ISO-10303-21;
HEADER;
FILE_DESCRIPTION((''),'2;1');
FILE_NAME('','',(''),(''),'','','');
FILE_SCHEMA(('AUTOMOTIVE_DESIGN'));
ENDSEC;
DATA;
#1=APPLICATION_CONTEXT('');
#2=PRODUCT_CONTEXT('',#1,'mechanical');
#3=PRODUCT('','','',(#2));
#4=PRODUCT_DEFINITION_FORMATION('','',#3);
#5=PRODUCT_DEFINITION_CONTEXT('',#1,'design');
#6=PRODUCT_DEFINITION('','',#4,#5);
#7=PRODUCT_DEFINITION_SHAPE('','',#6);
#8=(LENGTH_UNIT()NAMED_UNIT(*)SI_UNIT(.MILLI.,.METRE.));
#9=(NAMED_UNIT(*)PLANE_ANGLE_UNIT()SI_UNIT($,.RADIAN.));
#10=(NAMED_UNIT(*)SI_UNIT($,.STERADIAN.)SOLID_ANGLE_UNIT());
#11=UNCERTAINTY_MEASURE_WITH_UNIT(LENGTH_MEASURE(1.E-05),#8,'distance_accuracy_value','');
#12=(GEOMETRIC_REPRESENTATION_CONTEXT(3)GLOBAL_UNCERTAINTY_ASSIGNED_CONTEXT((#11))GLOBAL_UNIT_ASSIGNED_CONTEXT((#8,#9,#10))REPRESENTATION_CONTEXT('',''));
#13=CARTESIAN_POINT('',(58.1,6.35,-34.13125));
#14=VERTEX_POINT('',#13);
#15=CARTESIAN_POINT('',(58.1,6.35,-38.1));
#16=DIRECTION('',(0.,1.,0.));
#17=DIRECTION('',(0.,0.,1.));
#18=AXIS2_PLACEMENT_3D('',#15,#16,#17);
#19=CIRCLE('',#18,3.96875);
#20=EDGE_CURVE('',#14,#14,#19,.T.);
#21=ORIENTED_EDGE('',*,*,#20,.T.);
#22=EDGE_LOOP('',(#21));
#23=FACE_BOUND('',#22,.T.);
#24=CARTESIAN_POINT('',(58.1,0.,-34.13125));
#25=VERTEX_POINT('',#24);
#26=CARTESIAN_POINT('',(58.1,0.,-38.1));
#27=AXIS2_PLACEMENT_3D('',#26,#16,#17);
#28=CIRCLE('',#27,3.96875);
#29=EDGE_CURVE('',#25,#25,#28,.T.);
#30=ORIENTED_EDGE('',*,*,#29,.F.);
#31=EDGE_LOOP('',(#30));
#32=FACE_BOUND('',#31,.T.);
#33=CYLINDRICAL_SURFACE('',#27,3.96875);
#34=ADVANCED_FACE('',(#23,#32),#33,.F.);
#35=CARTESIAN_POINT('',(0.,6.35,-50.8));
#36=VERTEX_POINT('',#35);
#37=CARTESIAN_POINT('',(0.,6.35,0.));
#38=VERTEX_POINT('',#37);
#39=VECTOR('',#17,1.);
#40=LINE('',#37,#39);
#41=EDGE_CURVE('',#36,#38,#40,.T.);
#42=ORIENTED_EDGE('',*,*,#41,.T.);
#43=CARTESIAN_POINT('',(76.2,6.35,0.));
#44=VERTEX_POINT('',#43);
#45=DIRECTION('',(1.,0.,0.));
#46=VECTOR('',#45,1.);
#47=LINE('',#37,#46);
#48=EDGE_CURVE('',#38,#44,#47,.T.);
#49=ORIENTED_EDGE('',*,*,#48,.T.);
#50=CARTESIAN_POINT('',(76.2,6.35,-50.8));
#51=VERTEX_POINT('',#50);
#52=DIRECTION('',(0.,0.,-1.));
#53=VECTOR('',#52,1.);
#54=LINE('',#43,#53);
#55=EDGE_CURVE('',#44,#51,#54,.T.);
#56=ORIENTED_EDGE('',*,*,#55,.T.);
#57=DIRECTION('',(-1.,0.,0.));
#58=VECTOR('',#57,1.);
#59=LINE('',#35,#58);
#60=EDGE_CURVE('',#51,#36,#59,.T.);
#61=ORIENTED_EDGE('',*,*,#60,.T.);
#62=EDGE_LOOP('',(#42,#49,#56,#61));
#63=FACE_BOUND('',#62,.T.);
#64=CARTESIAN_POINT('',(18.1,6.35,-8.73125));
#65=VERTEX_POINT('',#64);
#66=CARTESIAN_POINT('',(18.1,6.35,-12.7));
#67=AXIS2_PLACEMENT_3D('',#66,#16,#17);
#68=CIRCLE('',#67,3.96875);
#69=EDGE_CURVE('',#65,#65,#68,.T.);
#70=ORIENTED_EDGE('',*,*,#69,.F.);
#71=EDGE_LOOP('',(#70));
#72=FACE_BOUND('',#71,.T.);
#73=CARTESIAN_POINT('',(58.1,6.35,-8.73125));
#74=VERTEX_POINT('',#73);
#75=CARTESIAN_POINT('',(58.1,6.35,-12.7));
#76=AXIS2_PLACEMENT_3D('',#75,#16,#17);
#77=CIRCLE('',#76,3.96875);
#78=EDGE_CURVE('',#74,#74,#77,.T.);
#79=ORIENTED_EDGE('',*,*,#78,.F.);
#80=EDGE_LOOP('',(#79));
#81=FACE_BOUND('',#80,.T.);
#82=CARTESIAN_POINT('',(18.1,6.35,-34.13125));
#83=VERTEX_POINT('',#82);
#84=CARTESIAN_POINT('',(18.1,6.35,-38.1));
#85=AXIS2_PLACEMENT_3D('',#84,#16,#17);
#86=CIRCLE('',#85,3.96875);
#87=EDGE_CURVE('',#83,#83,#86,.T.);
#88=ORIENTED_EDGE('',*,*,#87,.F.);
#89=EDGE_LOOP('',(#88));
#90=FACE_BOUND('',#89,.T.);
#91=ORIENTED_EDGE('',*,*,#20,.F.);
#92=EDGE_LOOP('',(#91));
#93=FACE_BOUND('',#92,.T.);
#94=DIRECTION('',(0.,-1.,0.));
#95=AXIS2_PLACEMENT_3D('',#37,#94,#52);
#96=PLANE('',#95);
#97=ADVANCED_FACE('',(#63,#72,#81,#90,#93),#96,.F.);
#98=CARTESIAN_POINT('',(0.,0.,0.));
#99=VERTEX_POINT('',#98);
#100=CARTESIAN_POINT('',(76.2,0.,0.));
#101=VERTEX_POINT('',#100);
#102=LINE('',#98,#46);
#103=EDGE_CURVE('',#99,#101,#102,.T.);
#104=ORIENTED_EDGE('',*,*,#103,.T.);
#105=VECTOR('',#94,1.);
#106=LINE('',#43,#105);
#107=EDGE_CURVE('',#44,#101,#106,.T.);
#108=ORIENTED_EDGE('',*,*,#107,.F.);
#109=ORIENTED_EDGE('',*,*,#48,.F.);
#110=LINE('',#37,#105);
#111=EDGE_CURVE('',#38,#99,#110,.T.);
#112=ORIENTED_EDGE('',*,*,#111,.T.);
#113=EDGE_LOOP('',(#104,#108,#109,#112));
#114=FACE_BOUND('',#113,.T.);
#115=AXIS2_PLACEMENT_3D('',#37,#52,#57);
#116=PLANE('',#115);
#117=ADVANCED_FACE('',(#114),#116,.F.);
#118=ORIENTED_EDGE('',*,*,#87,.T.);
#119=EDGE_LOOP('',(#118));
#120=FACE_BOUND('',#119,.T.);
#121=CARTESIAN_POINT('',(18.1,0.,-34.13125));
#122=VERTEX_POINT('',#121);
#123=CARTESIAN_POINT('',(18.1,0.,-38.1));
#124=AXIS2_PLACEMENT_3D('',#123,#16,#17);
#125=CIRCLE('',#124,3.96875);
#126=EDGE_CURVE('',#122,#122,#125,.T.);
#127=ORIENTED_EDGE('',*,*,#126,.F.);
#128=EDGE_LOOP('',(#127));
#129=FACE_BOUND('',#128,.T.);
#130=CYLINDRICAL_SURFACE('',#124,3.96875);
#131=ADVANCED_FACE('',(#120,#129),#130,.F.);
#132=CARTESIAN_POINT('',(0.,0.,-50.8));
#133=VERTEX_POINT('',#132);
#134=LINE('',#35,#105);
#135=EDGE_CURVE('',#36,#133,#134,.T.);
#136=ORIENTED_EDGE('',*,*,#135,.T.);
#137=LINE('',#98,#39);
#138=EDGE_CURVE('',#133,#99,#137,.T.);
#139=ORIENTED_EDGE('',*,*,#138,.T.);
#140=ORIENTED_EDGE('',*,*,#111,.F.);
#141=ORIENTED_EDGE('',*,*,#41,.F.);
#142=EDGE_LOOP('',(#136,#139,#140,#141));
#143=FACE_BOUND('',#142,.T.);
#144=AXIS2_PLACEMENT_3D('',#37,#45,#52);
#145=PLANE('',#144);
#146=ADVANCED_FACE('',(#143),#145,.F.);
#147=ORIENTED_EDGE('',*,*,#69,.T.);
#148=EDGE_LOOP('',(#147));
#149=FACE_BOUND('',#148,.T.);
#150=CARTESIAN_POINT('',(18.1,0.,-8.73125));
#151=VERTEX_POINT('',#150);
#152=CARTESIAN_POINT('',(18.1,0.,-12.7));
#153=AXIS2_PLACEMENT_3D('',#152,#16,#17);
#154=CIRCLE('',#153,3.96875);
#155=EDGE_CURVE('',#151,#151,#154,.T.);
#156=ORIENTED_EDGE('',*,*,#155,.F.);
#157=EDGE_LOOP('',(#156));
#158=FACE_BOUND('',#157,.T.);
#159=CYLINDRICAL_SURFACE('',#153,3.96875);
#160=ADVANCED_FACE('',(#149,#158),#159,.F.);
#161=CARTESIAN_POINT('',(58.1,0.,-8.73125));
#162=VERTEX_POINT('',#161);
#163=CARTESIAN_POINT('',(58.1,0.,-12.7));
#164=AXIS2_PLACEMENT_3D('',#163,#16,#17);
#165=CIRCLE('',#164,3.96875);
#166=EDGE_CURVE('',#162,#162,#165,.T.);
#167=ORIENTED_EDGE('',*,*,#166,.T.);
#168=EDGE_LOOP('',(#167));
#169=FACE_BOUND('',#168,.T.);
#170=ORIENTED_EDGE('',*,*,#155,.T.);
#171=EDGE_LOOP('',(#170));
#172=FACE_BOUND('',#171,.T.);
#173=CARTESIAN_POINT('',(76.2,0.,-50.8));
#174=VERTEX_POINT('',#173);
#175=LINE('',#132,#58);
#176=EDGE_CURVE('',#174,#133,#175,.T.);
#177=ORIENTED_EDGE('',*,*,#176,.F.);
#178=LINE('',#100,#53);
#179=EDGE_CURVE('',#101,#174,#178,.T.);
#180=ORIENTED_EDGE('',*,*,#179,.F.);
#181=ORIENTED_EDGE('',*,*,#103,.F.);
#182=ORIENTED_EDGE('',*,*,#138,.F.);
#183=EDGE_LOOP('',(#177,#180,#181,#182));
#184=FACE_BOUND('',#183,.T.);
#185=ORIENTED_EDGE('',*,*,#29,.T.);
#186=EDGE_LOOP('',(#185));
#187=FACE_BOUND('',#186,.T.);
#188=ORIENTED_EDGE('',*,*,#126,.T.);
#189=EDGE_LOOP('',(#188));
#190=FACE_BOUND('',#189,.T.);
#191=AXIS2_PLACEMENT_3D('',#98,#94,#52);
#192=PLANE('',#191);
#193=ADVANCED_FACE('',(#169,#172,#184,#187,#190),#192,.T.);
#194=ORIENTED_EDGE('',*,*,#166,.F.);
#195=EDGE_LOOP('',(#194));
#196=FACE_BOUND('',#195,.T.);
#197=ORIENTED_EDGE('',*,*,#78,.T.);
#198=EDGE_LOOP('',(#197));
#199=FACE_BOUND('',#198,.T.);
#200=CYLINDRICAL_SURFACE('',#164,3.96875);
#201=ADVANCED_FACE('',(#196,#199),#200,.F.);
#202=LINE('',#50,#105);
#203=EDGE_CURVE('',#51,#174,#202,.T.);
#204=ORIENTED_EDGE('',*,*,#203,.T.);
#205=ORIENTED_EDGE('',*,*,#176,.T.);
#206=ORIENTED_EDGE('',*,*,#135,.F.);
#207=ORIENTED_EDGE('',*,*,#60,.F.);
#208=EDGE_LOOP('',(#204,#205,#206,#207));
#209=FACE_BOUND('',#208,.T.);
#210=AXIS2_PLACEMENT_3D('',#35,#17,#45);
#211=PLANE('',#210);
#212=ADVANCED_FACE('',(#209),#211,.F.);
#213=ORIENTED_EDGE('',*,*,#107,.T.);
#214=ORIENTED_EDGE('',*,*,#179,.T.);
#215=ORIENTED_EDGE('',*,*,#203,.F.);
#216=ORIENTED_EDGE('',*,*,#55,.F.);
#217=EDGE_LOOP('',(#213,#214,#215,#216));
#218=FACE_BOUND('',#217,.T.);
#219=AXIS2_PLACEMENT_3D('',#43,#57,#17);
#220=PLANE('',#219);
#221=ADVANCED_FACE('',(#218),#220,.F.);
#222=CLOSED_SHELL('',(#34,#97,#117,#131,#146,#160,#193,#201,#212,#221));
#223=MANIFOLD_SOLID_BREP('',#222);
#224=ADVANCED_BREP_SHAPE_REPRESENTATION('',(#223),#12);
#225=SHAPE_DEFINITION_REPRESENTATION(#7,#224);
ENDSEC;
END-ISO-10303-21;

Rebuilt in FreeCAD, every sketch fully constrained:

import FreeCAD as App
import Part
import Sketcher
Q = App.Units.Quantity


def add_polygon(sketch, points):
    """Adds a closed chain of lines whose ends are joined by coincident constraints."""
    first, n = sketch.GeometryCount, len(points)
    for a, b in zip(points, points[1:] + points[:1]):
        sketch.addGeometry(Part.LineSegment(App.Vector(*a, 0), App.Vector(*b, 0)), False)
    for i in range(n):
        sketch.addConstraint(Sketcher.Constraint("Coincident", first + i, 2, first + (i + 1) % n, 1))

doc = App.newDocument("Part")
body = doc.addObject("PartDesign::Body", "Body")

sketch1 = body.newObject("Sketcher::SketchObject", "Sketch")
sketch1.AttachmentSupport = (doc.getObject("XZ_Plane"), [""])
sketch1.MapMode = "FlatFace"
add_polygon(sketch1, [(0, -51), (0, 0), (76, 0), (76, -51)])
sketch1.addConstraint([
    Sketcher.Constraint("Vertical", 0),
    Sketcher.Constraint("Horizontal", 1),
    Sketcher.Constraint("Vertical", 2),
    Sketcher.Constraint("Horizontal", 3),
    Sketcher.Constraint("Coincident", 0, 2, -1, 1),
    Sketcher.Constraint("DistanceX", 1, 1, 1, 2, Q("3 in")),
    Sketcher.Constraint("DistanceY", 0, 1, 0, 2, Q("2 in")),
])
pad1 = body.newObject("PartDesign::Pad", "Pad")
pad1.Profile = sketch1
pad1.Length = Q("0.25 in")
pad1.Reversed = True

sketch2 = body.newObject("Sketcher::SketchObject", "Sketch001")
sketch2.AttachmentSupport = (doc.getObject("XZ_Plane"), [""])
sketch2.MapMode = "FlatFace"
sketch2.AttachmentOffset = App.Placement(App.Vector(0, 0, -0.25 * 25.4), App.Rotation())
sketch2.addGeometry([
    Part.Circle(App.Vector(18.1, -38.1, 0), App.Vector(0, 0, 1), 4),
    Part.Circle(App.Vector(18.1, -12.7, 0), App.Vector(0, 0, 1), 4),
    Part.Circle(App.Vector(58.1, -38.1, 0), App.Vector(0, 0, 1), 4),
    Part.Circle(App.Vector(58.1, -12.7, 0), App.Vector(0, 0, 1), 4),
], False)
sketch2.addConstraint([
    Sketcher.Constraint("Equal", 0, 1),
    Sketcher.Constraint("Equal", 1, 2),
    Sketcher.Constraint("Equal", 2, 3),
    Sketcher.Constraint("Horizontal", 0, 3, 2, 3),
    Sketcher.Constraint("Horizontal", 1, 3, 3, 3),
    Sketcher.Constraint("Vertical", 0, 3, 1, 3),
    Sketcher.Constraint("Vertical", 2, 3, 3, 3),
    Sketcher.Constraint("Diameter", 0, Q("0.3125 in")),
    Sketcher.Constraint("DistanceY", 0, 3, 1, 3, Q("1 in")),
    Sketcher.Constraint("DistanceY", 0, 3, -1, 1, Q("1.5 in")),
    Sketcher.Constraint("DistanceX", -1, 1, 0, 3, Q("18.1 mm")),
    Sketcher.Constraint("DistanceX", -1, 1, 2, 3, Q("58.1 mm")),
])
pocket1 = body.newObject("PartDesign::Pocket", "Pocket")
pocket1.Profile = sketch2
pocket1.Type = "ThroughAll"
pocket1.Reversed = True

doc.recompute()
